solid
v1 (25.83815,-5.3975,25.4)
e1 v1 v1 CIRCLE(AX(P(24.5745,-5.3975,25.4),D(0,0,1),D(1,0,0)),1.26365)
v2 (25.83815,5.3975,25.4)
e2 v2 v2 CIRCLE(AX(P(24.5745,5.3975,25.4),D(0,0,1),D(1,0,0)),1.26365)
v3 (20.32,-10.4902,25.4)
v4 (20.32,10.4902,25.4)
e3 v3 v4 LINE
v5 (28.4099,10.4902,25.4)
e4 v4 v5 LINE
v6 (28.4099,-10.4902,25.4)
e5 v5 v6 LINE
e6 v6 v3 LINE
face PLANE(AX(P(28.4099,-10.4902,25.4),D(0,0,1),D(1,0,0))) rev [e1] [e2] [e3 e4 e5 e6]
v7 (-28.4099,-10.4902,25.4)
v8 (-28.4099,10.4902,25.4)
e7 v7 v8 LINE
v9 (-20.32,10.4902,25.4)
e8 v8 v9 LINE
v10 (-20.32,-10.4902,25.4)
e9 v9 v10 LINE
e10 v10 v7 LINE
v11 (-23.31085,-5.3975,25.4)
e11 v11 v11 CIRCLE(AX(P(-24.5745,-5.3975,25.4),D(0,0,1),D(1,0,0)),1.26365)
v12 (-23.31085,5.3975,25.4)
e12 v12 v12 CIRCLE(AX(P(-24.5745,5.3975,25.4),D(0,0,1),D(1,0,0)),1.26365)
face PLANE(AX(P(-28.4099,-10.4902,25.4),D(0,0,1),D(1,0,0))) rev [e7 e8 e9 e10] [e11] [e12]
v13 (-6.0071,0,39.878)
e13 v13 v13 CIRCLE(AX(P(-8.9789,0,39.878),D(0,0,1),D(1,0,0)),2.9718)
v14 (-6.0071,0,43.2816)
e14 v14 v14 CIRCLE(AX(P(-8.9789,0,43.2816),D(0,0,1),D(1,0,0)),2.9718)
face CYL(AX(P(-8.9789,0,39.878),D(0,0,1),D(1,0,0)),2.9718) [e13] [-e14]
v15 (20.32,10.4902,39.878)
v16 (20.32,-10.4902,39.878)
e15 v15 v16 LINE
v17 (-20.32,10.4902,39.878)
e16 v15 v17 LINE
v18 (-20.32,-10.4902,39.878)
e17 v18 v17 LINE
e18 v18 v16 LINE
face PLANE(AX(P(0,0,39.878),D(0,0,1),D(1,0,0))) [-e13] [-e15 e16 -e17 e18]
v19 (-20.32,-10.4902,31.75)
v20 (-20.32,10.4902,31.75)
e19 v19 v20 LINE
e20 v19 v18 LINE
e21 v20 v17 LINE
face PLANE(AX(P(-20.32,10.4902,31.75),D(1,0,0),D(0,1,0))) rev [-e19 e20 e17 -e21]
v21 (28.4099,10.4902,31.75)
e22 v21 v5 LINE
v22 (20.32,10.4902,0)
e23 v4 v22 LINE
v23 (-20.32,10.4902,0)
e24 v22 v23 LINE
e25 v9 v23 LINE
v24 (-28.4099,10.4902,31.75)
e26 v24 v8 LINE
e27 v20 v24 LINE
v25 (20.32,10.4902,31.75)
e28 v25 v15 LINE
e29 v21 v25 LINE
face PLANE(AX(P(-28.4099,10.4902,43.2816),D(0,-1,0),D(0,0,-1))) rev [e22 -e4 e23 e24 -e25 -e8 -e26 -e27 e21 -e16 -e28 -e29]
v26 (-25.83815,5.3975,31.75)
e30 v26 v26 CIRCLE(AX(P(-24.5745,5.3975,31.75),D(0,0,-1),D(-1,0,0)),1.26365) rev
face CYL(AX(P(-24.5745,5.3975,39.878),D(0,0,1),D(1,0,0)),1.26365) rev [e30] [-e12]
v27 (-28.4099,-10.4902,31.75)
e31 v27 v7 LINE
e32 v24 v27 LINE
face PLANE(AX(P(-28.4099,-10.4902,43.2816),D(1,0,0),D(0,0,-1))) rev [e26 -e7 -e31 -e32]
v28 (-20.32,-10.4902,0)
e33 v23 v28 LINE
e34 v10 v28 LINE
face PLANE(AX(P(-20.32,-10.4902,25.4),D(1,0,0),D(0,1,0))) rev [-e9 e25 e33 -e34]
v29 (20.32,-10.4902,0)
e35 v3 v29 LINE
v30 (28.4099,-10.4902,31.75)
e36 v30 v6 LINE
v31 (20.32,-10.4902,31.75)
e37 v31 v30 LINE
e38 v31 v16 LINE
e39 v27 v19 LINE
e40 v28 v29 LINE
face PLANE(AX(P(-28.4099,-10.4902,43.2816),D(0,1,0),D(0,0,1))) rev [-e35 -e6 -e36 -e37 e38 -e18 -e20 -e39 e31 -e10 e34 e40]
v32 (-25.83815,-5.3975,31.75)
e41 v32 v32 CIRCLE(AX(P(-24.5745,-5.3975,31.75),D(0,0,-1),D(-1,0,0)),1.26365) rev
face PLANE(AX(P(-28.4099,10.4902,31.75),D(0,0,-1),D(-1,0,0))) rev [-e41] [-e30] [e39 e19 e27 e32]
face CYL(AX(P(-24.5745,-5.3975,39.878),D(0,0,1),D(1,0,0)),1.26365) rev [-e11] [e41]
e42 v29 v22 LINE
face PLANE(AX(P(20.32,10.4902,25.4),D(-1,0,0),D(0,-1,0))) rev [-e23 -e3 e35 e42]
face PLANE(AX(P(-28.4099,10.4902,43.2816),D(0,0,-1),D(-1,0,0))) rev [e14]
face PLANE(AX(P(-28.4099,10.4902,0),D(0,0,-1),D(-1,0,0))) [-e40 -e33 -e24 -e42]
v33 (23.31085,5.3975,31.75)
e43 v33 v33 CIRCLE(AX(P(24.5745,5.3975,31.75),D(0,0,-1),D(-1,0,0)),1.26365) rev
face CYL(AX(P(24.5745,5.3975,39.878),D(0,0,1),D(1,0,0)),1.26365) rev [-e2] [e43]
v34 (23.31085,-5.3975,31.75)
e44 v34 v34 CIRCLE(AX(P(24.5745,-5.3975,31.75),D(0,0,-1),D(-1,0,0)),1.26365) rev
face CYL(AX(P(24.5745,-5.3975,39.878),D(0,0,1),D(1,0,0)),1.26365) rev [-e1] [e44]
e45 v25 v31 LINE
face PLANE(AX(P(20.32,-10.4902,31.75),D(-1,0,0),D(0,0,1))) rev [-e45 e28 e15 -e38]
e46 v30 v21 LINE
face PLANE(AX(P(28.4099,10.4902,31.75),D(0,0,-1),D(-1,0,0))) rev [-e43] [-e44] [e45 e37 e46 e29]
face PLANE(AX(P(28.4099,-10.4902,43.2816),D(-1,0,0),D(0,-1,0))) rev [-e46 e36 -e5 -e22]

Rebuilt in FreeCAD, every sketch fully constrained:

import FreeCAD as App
import Part
import Sketcher
from FreeCAD import Vector
Q = App.Units.Quantity


def add_polygon(sketch, points):
    """Adds a closed chain of lines whose ends are joined by coincident constraints."""
    first, n = sketch.GeometryCount, len(points)
    for a, b in zip(points, points[1:] + points[:1]):
        sketch.addGeometry(Part.LineSegment(App.Vector(*a, 0), App.Vector(*b, 0)), False)
    for i in range(n):
        sketch.addConstraint(Sketcher.Constraint("Coincident", first + i, 2, first + (i + 1) % n, 1))

doc = App.newDocument("Part")
body = doc.addObject("PartDesign::Body", "Body")

sketch1 = body.newObject("Sketcher::SketchObject", "Sketch")
sketch1.AttachmentSupport = (doc.getObject("XY_Plane"), [""])
sketch1.MapMode = "FlatFace"
add_polygon(sketch1, [(-28.4099, 10.4902), (-28.4099, -10.4902), (28.4099, -10.4902), (28.4099, 10.4902)])
sketch1.addConstraint(Sketcher.Constraint("Vertical", 0))
sketch1.addConstraint(Sketcher.Constraint("Horizontal", 1))
sketch1.addConstraint(Sketcher.Constraint("Vertical", 2))
sketch1.addConstraint(Sketcher.Constraint("Horizontal", 3))
sketch1.addConstraint(Sketcher.Constraint("Symmetric", 0, 2, 2, 2, -1, 1))
sketch1.addConstraint(Sketcher.Constraint("DistanceX", 1, 1, 1, 2, Q("2.237 in")))
sketch1.addConstraint(Sketcher.Constraint("DistanceY", 0, 2, 0, 1, Q("0.826 in")))
pad1 = body.newObject("PartDesign::Pad", "Pad")
pad1.Profile = sketch1
pad1.Length = Q("1.704 in")

sketch2 = body.newObject("Sketcher::SketchObject", "Sketch001")
sketch2.AttachmentSupport = (doc.getObject("XY_Plane"), [""])
sketch2.MapMode = "FlatFace"
sketch2.AttachmentOffset = App.Placement(Vector(0, 0, 1.704 * 25.4), App.Rotation())
add_polygon(sketch2, [(-36.854, 18.934), (-36.854, -18.934), (36.854, -18.934), (36.854, 18.934)])
sketch2.addGeometry(Part.Circle(Vector(-8.9789, 0, 0), Vector(0, 0, 1), 2.9718), False)
sketch2.addConstraint(Sketcher.Constraint("Vertical", 0))
sketch2.addConstraint(Sketcher.Constraint("Horizontal", 1))
sketch2.addConstraint(Sketcher.Constraint("Vertical", 2))
sketch2.addConstraint(Sketcher.Constraint("Horizontal", 3))
sketch2.addConstraint(Sketcher.Constraint("Symmetric", 0, 2, 2, 2, -1, 1))
sketch2.addConstraint(Sketcher.Constraint("PointOnObject", 4, 3, -1))
sketch2.addConstraint(Sketcher.Constraint("Diameter", 4, Q("0.234 in")))
sketch2.addConstraint(Sketcher.Constraint("DistanceX", 1, 1, 1, 2, Q("73.708 mm")))
sketch2.addConstraint(Sketcher.Constraint("DistanceY", 0, 2, 0, 1, Q("37.868 mm")))
sketch2.addConstraint(Sketcher.Constraint("DistanceX", 4, 3, -1, 1, Q("0.3535 in")))
pocket1 = body.newObject("PartDesign::Pocket", "Pocket")
pocket1.Profile = sketch2
pocket1.Length = Q("0.134 in")

sketch3 = body.newObject("Sketcher::SketchObject", "Sketch002")
sketch3.AttachmentSupport = (doc.getObject("XY_Plane"), [""])
sketch3.MapMode = "FlatFace"
add_polygon(sketch3, [(28.4099, 10.4902), (28.4099, -10.4902), (20.32, -10.4902), (20.32, 10.4902)])
add_polygon(sketch3, [(-20.32, 10.4902), (-20.32, -10.4902), (-28.4099, -10.4902), (-28.4099, 10.4902)])
sketch3.addConstraint(Sketcher.Constraint("Vertical", 0))
sketch3.addConstraint(Sketcher.Constraint("Horizontal", 1))
sketch3.addConstraint(Sketcher.Constraint("Vertical", 2))
sketch3.addConstraint(Sketcher.Constraint("Horizontal", 3))
sketch3.addConstraint(Sketcher.Constraint("Vertical", 4))
sketch3.addConstraint(Sketcher.Constraint("Horizontal", 5))
sketch3.addConstraint(Sketcher.Constraint("Vertical", 6))
sketch3.addConstraint(Sketcher.Constraint("Horizontal", 7))
sketch3.addConstraint(Sketcher.Constraint("Symmetric", 2, 2, 4, 2, -1, 1))
sketch3.addConstraint(Sketcher.Constraint("Symmetric", 0, 2, 6, 2, -1, 1))
sketch3.addConstraint(Sketcher.Constraint("Horizontal", 1, 2, 4, 2))
sketch3.addConstraint(Sketcher.Constraint("DistanceX", -1, 1, 1, 2, Q("0.8 in")))
sketch3.addConstraint(Sketcher.Constraint("DistanceY", 0, 2, 0, 1, Q("0.826 in")))
sketch3.addConstraint(Sketcher.Constraint("DistanceX", 1, 2, 1, 1, Q("0.3185 in")))
pocket2 = body.newObject("PartDesign::Pocket", "Pocket001")
pocket2.Profile = sketch3
pocket2.Length = Q("1 in")
pocket2.Reversed = True

sketch4 = body.newObject("Sketcher::SketchObject", "Sketch003")
sketch4.AttachmentSupport = (doc.getObject("XY_Plane"), [""])
sketch4.MapMode = "FlatFace"
sketch4.AttachmentOffset = App.Placement(Vector(0, 0, 1.57 * 25.4), App.Rotation())
sketch4.addGeometry(Part.Circle(Vector(-24.5745, 5.3975, 0), Vector(0, 0, 1), 1.26365), False)
sketch4.addGeometry(Part.Circle(Vector(-24.5745, -5.3975, 0), Vector(0, 0, 1), 1.26365), False)
sketch4.addGeometry(Part.Circle(Vector(24.5745, 5.3975, 0), Vector(0, 0, 1), 1.26365), False)
sketch4.addGeometry(Part.Circle(Vector(24.5745, -5.3975, 0), Vector(0, 0, 1), 1.26365), False)
sketch4.addConstraint(Sketcher.Constraint("Equal", 0, 1))
sketch4.addConstraint(Sketcher.Constraint("Equal", 1, 2))
sketch4.addConstraint(Sketcher.Constraint("Equal", 2, 3))
sketch4.addConstraint(Sketcher.Constraint("Symmetric", 1, 3, 2, 3, -1, 1))
sketch4.addConstraint(Sketcher.Constraint("Symmetric", 0, 3, 3, 3, -1, 1))
sketch4.addConstraint(Sketcher.Constraint("Symmetric", 0, 3, 2, 3, -2))
sketch4.addConstraint(Sketcher.Constraint("Diameter", 0, Q("0.0995 in")))
sketch4.addConstraint(Sketcher.Constraint("DistanceY", 1, 3, 0, 3, Q("0.425 in")))
sketch4.addConstraint(Sketcher.Constraint("DistanceX", 0, 3, 2, 3, Q("1.935 in")))
doc.recompute()
hole = body.newObject("PartDesign::Hole", "Hole")
hole.Profile = sketch4
hole.ThreadType = "None"
hole.Diameter = Q("0.0995 in")
hole.DepthType = "ThroughAll"

sketch5 = body.newObject("Sketcher::SketchObject", "Sketch004")
sketch5.AttachmentSupport = (doc.getObject("XY_Plane"), [""])
sketch5.MapMode = "FlatFace"
sketch5.AttachmentOffset = App.Placement(Vector(0, 0, 1.57 * 25.4), App.Rotation())
add_polygon(sketch5, [(-28.4099, 10.4902), (-28.4099, -10.4902), (-20.32, -10.4902), (-20.32, 10.4902)])
add_polygon(sketch5, [(20.32, 10.4902), (20.32, -10.4902), (28.4099, -10.4902), (28.4099, 10.4902)])
sketch5.addConstraint(Sketcher.Constraint("Vertical", 0))
sketch5.addConstraint(Sketcher.Constraint("Horizontal", 1))
sketch5.addConstraint(Sketcher.Constraint("Vertical", 2))
sketch5.addConstraint(Sketcher.Constraint("Horizontal", 3))
sketch5.addConstraint(Sketcher.Constraint("Vertical", 4))
sketch5.addConstraint(Sketcher.Constraint("Horizontal", 5))
sketch5.addConstraint(Sketcher.Constraint("Vertical", 6))
sketch5.addConstraint(Sketcher.Constraint("Horizontal", 7))
sketch5.addConstraint(Sketcher.Constraint("Symmetric", 2, 2, 4, 2, -1, 1))
sketch5.addConstraint(Sketcher.Constraint("Symmetric", 0, 2, 6, 2, -1, 1))
sketch5.addConstraint(Sketcher.Constraint("Horizontal", 1, 2, 4, 2))
sketch5.addConstraint(Sketcher.Constraint("DistanceX", 1, 2, -1, 1, Q("0.8 in")))
sketch5.addConstraint(Sketcher.Constraint("DistanceY", 0, 2, 0, 1, Q("0.826 in")))
sketch5.addConstraint(Sketcher.Constraint("DistanceX", 1, 1, 1, 2, Q("0.3185 in")))
pocket3 = body.newObject("PartDesign::Pocket", "Pocket002")
pocket3.Profile = sketch5
pocket3.Length = Q("0.32 in")

doc.recompute()
